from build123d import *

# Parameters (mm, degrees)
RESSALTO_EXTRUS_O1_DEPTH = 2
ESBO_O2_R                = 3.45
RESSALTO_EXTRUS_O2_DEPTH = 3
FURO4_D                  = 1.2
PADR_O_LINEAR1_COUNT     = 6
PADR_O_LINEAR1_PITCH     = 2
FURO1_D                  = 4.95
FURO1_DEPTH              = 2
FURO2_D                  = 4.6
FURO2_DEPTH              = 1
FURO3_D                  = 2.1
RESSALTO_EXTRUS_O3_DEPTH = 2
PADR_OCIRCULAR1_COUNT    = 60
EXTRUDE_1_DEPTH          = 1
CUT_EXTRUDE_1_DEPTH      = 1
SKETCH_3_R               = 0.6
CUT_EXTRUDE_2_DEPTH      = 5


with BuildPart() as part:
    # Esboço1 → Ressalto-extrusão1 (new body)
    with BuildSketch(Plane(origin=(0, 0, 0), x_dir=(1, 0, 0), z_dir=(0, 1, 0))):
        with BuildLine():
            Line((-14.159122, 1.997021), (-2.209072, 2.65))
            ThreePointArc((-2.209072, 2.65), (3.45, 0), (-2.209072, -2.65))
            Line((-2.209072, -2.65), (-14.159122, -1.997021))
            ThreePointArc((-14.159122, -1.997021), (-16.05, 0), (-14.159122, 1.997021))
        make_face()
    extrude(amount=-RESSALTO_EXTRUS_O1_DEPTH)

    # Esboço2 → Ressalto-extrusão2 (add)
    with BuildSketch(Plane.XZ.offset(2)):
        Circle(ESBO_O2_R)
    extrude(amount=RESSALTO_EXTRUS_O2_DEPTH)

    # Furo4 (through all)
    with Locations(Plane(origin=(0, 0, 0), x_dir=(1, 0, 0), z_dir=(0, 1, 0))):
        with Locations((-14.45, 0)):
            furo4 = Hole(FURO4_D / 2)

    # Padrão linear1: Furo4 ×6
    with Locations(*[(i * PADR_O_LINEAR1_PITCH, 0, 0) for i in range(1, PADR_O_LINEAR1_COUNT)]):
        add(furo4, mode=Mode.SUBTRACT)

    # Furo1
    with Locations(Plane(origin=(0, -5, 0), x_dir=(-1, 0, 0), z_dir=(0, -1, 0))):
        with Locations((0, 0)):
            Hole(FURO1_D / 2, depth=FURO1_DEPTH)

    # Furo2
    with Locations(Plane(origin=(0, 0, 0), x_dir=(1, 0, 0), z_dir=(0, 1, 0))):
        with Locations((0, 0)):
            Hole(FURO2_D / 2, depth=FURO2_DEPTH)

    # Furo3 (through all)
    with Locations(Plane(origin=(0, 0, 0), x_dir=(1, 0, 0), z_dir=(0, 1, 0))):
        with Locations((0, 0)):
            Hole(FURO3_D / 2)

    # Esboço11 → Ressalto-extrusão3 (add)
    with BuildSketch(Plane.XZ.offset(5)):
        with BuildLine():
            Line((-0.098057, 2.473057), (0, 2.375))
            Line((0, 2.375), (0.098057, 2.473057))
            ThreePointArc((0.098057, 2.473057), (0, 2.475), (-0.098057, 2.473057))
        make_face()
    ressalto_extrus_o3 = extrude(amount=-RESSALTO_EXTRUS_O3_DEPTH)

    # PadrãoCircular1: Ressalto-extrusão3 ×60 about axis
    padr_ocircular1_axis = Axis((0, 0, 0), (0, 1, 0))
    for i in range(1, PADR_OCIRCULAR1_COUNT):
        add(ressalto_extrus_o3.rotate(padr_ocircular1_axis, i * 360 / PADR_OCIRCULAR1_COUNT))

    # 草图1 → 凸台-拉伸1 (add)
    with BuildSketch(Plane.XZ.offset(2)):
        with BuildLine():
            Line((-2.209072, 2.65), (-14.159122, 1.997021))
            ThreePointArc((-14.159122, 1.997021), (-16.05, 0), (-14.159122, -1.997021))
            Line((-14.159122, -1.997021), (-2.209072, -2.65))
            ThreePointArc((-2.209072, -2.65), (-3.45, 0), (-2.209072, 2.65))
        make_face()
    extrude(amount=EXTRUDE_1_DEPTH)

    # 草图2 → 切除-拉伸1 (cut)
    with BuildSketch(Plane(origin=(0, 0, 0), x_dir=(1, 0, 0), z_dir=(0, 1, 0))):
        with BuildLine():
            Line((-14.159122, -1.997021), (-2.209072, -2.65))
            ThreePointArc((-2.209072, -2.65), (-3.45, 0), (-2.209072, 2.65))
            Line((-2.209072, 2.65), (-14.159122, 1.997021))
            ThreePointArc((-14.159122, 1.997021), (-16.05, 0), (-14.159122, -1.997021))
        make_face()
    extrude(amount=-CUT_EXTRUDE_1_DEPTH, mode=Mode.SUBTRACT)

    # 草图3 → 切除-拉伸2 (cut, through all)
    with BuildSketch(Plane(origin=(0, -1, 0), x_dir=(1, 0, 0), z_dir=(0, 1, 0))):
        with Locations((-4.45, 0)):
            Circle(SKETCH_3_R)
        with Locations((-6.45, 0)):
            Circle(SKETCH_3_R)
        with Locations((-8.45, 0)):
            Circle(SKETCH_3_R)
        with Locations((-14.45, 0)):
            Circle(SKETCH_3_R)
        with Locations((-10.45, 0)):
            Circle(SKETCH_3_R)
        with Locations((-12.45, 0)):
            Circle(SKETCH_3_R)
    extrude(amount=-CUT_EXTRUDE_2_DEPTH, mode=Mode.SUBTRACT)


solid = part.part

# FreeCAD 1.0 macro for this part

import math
import FreeCAD as App
import Part
import Sketcher

doc = App.newDocument("Part")
params = doc.addObject("Spreadsheet::Sheet", "Params")
for row, (alias, value) in enumerate([
    ("sketch1_radius", "2 mm"),
    ("sketch1_radius2", "3.45 mm"),
    ("pad1_length", "2 mm"),
    ("sketch2_diameter", "6.9 mm"),
    ("pad2_length", "3 mm"),
    ("sketch3_diameter", "1.2 mm"),
    ("hole_diameter", "1.2 mm"),
    ("linearpattern_pitch", "2 mm"),
    ("sketch4_diameter", "4.95 mm"),
    ("hole2_diameter", "4.95 mm"),
    ("hole2_depth", "2 mm"),
    ("sketch5_diameter", "4.6 mm"),
    ("hole3_diameter", "4.6 mm"),
    ("hole3_depth", "1 mm"),
    ("sketch6_diameter", "2.1 mm"),
    ("hole4_diameter", "2.1 mm"),
    ("pad3_length", "2 mm"),
    ("sketch8_radius", "2 mm"),
    ("sketch8_radius2", "3.45 mm"),
    ("pad4_length", "1 mm"),
    ("sketch9_radius", "2 mm"),
    ("sketch9_radius2", "3.45 mm"),
    ("pocket1_length", "1 mm"),
    ("sketch10_diameter", "1.2 mm"),
], start=1):
    params.set(f"A{row}", alias)
    params.set(f"B{row}", "=" + value)
    params.setAlias(f"B{row}", alias)

body = doc.addObject("PartDesign::Body", "Body")

# Sketch on XZ plane
sketch1 = doc.addObject("Sketcher::SketchObject", "Sketch")
body.addObject(sketch1)
sketch1.AttachmentSupport = (doc.XZ_Plane, [""])
sketch1.MapMode = "FlatFace"
sketch1.addGeometry([
    Part.LineSegment(App.Vector(-2.2, -2.6, 0), App.Vector(-14.2, -2, 0)),
    Part.ArcOfCircle(Part.Circle(App.Vector(-14, 0, 0), App.Vector(0, 0, 1), 2), math.radians(93), math.radians(267)),
    Part.LineSegment(App.Vector(-14.2, 2, 0), App.Vector(-2.2, 2.6, 0)),
    Part.ArcOfCircle(Part.Circle(App.Vector(0, 0, 0), App.Vector(0, 0, 1), 3.4), math.radians(-130), math.radians(130)),
], False)
sketch1.addConstraint([
    Sketcher.Constraint("Tangent", 0, 2, 1, 2),
    Sketcher.Constraint("Tangent", 1, 1, 2, 1),
    Sketcher.Constraint("Coincident", 2, 2, 3, 2),
    Sketcher.Constraint("Coincident", 3, 1, 0, 1),
    Sketcher.Constraint("Coincident", 3, 3, -1, 1),
    Sketcher.Constraint("Symmetric", 0, 2, 1, 1, -1),
    Sketcher.Constraint("Radius", 1, 2.0),
    Sketcher.Constraint("Radius", 3, 3.45),
    Sketcher.Constraint("DistanceY", 3, 1, 2, 2, 5.3),
    Sketcher.Constraint("DistanceX", 1, 3, -1, 1, 14.05),
])
sketch1.setExpression("Constraints[6]", "Params.sketch1_radius")
sketch1.setExpression("Constraints[7]", "Params.sketch1_radius2")
pad1 = doc.addObject("PartDesign::Pad", "Pad")
body.addObject(pad1)
pad1.Profile = sketch1
pad1.setExpression("Length", "Params.pad1_length")

# Sketch on XZ plane
sketch2 = doc.addObject("Sketcher::SketchObject", "Sketch001")
body.addObject(sketch2)
sketch2.AttachmentSupport = (doc.XZ_Plane, [""])
sketch2.MapMode = "FlatFace"
sketch2.AttachmentOffset = App.Placement(App.Vector(0, 0, 2), App.Rotation())
sketch2.addGeometry(Part.Circle(App.Vector(0, 0, 0), App.Vector(0, 0, 1), 3.5), False)
sketch2.addConstraint([
    Sketcher.Constraint("Coincident", 0, 3, -1, 1),
    Sketcher.Constraint("Diameter", 0, 6.9),
])
sketch2.setExpression("Constraints[1]", "Params.sketch2_diameter")
pad2 = doc.addObject("PartDesign::Pad", "Pad001")
body.addObject(pad2)
pad2.Profile = sketch2
pad2.setExpression("Length", "Params.pad2_length")

# Sketch on XZ plane
sketch3 = doc.addObject("Sketcher::SketchObject", "Sketch002")
body.addObject(sketch3)
sketch3.AttachmentSupport = (doc.XZ_Plane, [""])
sketch3.MapMode = "FlatFace"
sketch3.addGeometry(Part.Circle(App.Vector(-14.4, 0, 0), App.Vector(0, 0, 1), 0.6), False)
sketch3.addConstraint([
    Sketcher.Constraint("PointOnObject", 0, 3, -1),
    Sketcher.Constraint("Diameter", 0, 1.2),
    Sketcher.Constraint("DistanceX", 0, 3, -1, 1, 14.45),
])
sketch3.setExpression("Constraints[1]", "Params.sketch3_diameter")
doc.recompute()
hole = doc.addObject("PartDesign::Hole", "Hole")
body.addObject(hole)
hole.Profile = sketch3
hole.ThreadType = "None"
hole.setExpression("Diameter", "Params.hole_diameter")
hole.DepthType = "ThroughAll"
hole.Reversed = True
doc.recompute()

linearpattern = doc.addObject("PartDesign::LinearPattern", "LinearPattern")
body.addObject(linearpattern)
linearpattern.Originals = [hole]
linearpattern.Direction = (doc.X_Axis, [""])
linearpattern.Mode = "offset"
linearpattern.setExpression("Offset", "Params.linearpattern_pitch")
linearpattern.Occurrences = 6
body.Tip = linearpattern

# Sketch on XZ plane
sketch4 = doc.addObject("Sketcher::SketchObject", "Sketch003")
body.addObject(sketch4)
sketch4.AttachmentSupport = (doc.XZ_Plane, [""])
sketch4.MapMode = "FlatFace"
sketch4.AttachmentOffset = App.Placement(App.Vector(0, 0, 5), App.Rotation())
sketch4.addGeometry(Part.Circle(App.Vector(0, 0, 0), App.Vector(0, 0, 1), 2.5), False)
sketch4.addConstraint([
    Sketcher.Constraint("Coincident", 0, 3, -1, 1),
    Sketcher.Constraint("Diameter", 0, 4.95),
])
sketch4.setExpression("Constraints[1]", "Params.sketch4_diameter")
doc.recompute()
hole2 = doc.addObject("PartDesign::Hole", "Hole001")
body.addObject(hole2)
hole2.Profile = sketch4
hole2.ThreadType = "None"
hole2.setExpression("Diameter", "Params.hole2_diameter")
hole2.DepthType = "Dimension"
hole2.setExpression("Depth", "Params.hole2_depth")
hole2.DrillPoint = "Flat"

# Sketch on XZ plane
sketch5 = doc.addObject("Sketcher::SketchObject", "Sketch004")
body.addObject(sketch5)
sketch5.AttachmentSupport = (doc.XZ_Plane, [""])
sketch5.MapMode = "FlatFace"
sketch5.addGeometry(Part.Circle(App.Vector(0, 0, 0), App.Vector(0, 0, 1), 2.3), False)
sketch5.addConstraint([
    Sketcher.Constraint("Coincident", 0, 3, -1, 1),
    Sketcher.Constraint("Diameter", 0, 4.6),
])
sketch5.setExpression("Constraints[1]", "Params.sketch5_diameter")
doc.recompute()
hole3 = doc.addObject("PartDesign::Hole", "Hole002")
body.addObject(hole3)
hole3.Profile = sketch5
hole3.ThreadType = "None"
hole3.setExpression("Diameter", "Params.hole3_diameter")
hole3.DepthType = "Dimension"
hole3.setExpression("Depth", "Params.hole3_depth")
hole3.DrillPoint = "Flat"
hole3.Reversed = True

# Sketch on XZ plane
sketch6 = doc.addObject("Sketcher::SketchObject", "Sketch005")
body.addObject(sketch6)
sketch6.AttachmentSupport = (doc.XZ_Plane, [""])
sketch6.MapMode = "FlatFace"
sketch6.addGeometry(Part.Circle(App.Vector(0, 0, 0), App.Vector(0, 0, 1), 1.1), False)
sketch6.addConstraint([
    Sketcher.Constraint("Coincident", 0, 3, -1, 1),
    Sketcher.Constraint("Diameter", 0, 2.1),
])
sketch6.setExpression("Constraints[1]", "Params.sketch6_diameter")
doc.recompute()
hole4 = doc.addObject("PartDesign::Hole", "Hole003")
body.addObject(hole4)
hole4.Profile = sketch6
hole4.ThreadType = "None"
hole4.setExpression("Diameter", "Params.hole4_diameter")
hole4.DepthType = "ThroughAll"
hole4.Reversed = True

# Sketch on XZ plane
sketch7 = doc.addObject("Sketcher::SketchObject", "Sketch006")
body.addObject(sketch7)
sketch7.AttachmentSupport = (doc.XZ_Plane, [""])
sketch7.MapMode = "FlatFace"
sketch7.AttachmentOffset = App.Placement(App.Vector(0, 0, 5), App.Rotation())
sketch7.addGeometry([
    Part.LineSegment(App.Vector(-0.1, 2.47, 0), App.Vector(0, 2.38, 0)),
    Part.LineSegment(App.Vector(0, 2.38, 0), App.Vector(0.1, 2.47, 0)),
    Part.ArcOfCircle(Part.Circle(App.Vector(0, 0, 0), App.Vector(0, 0, 1), 2.48), math.radians(87.73), math.radians(92.27)),
], False)
sketch7.addConstraint([
    Sketcher.Constraint("Coincident", 0, 2, 1, 1),
    Sketcher.Constraint("Coincident", 1, 2, 2, 1),
    Sketcher.Constraint("Coincident", 2, 2, 0, 1),
    Sketcher.Constraint("Symmetric", 1, 2, 2, 2, -2),
    Sketcher.Constraint("PointOnObject", 0, 2, -2),
    Sketcher.Constraint("Perpendicular", 0, 1),
    Sketcher.Constraint("DistanceY", -1, 1, 0, 2, 2.375),
    Sketcher.Constraint("Radius", 2, 2.475283),
    Sketcher.Constraint("DistanceY", 2, 3, 1, 2, 2.47334),
])
pad3 = doc.addObject("PartDesign::Pad", "Pad002")
body.addObject(pad3)
pad3.Profile = sketch7
pad3.setExpression("Length", "Params.pad3_length")
pad3.Reversed = True
doc.recompute()

polarpattern = doc.addObject("PartDesign::PolarPattern", "PolarPattern")
body.addObject(polarpattern)
polarpattern.Originals = [pad3]
polarpattern.Axis = (doc.Y_Axis, [""])
polarpattern.Angle = 360
polarpattern.Occurrences = 60
body.Tip = polarpattern

# Sketch on XZ plane
sketch8 = doc.addObject("Sketcher::SketchObject", "Sketch007")
body.addObject(sketch8)
sketch8.AttachmentSupport = (doc.XZ_Plane, [""])
sketch8.MapMode = "FlatFace"
sketch8.AttachmentOffset = App.Placement(App.Vector(0, 0, 2), App.Rotation())
sketch8.addGeometry([
    Part.LineSegment(App.Vector(-2.2, 2.6, 0), App.Vector(-14.2, 2, 0)),
    Part.ArcOfCircle(Part.Circle(App.Vector(-14, 0, 0), App.Vector(0, 0, 1), 2), math.radians(93), math.radians(267)),
    Part.LineSegment(App.Vector(-14.2, -2, 0), App.Vector(-2.2, -2.6, 0)),
    Part.ArcOfCircle(Part.Circle(App.Vector(0, 0, 0), App.Vector(0, 0, 1), 3.4), math.radians(130), math.radians(230)),
], False)
sketch8.addConstraint([
    Sketcher.Constraint("Tangent", 0, 2, 1, 1),
    Sketcher.Constraint("Tangent", 1, 2, 2, 1),
    Sketcher.Constraint("Coincident", 2, 2, 3, 2),
    Sketcher.Constraint("Coincident", 3, 1, 0, 1),
    Sketcher.Constraint("Coincident", 3, 3, -1, 1),
    Sketcher.Constraint("Symmetric", 0, 2, 1, 2, -1),
    Sketcher.Constraint("Radius", 1, 2.0),
    Sketcher.Constraint("Radius", 3, 3.45),
    Sketcher.Constraint("DistanceY", 2, 2, 3, 1, 5.3),
    Sketcher.Constraint("DistanceX", 1, 3, -1, 1, 14.05),
])
sketch8.setExpression("Constraints[6]", "Params.sketch8_radius")
sketch8.setExpression("Constraints[7]", "Params.sketch8_radius2")
pad4 = doc.addObject("PartDesign::Pad", "Pad003")
body.addObject(pad4)
pad4.Profile = sketch8
pad4.setExpression("Length", "Params.pad4_length")

# Sketch on XZ plane
sketch9 = doc.addObject("Sketcher::SketchObject", "Sketch008")
body.addObject(sketch9)
sketch9.AttachmentSupport = (doc.XZ_Plane, [""])
sketch9.MapMode = "FlatFace"
sketch9.addGeometry([
    Part.LineSegment(App.Vector(-14.2, 2, 0), App.Vector(-2.2, 2.6, 0)),
    Part.ArcOfCircle(Part.Circle(App.Vector(0, 0, 0), App.Vector(0, 0, 1), 3.4), math.radians(130), math.radians(230)),
    Part.LineSegment(App.Vector(-2.2, -2.6, 0), App.Vector(-14.2, -2, 0)),
    Part.ArcOfCircle(Part.Circle(App.Vector(-14, 0, 0), App.Vector(0, 0, 1), 2), math.radians(93), math.radians(267)),
], False)
sketch9.addConstraint([
    Sketcher.Constraint("Coincident", 0, 2, 1, 1),
    Sketcher.Constraint("Coincident", 1, 2, 2, 1),
    Sketcher.Constraint("Tangent", 2, 2, 3, 2),
    Sketcher.Constraint("Tangent", 3, 1, 0, 1),
    Sketcher.Constraint("Coincident", 1, 3, -1, 1),
    Sketcher.Constraint("Symmetric", 2, 2, 3, 1, -1),
    Sketcher.Constraint("Radius", 3, 2.0),
    Sketcher.Constraint("Radius", 1, 3.45),
    Sketcher.Constraint("DistanceY", 1, 2, 0, 2, 5.3),
    Sketcher.Constraint("DistanceX", 3, 3, -1, 1, 14.05),
])
sketch9.setExpression("Constraints[6]", "Params.sketch9_radius")
sketch9.setExpression("Constraints[7]", "Params.sketch9_radius2")
pocket1 = doc.addObject("PartDesign::Pocket", "Pocket")
body.addObject(pocket1)
pocket1.Profile = sketch9
pocket1.setExpression("Length", "Params.pocket1_length")
pocket1.Reversed = True

# Sketch on XZ plane
sketch10 = doc.addObject("Sketcher::SketchObject", "Sketch009")
body.addObject(sketch10)
sketch10.AttachmentSupport = (doc.XZ_Plane, [""])
sketch10.MapMode = "FlatFace"
sketch10.AttachmentOffset = App.Placement(App.Vector(0, 0, 1), App.Rotation())
sketch10.addGeometry([
    Part.Circle(App.Vector(-4.5, 0, 0), App.Vector(0, 0, 1), 0.6),  # 0
    Part.Circle(App.Vector(-6.5, 0, 0), App.Vector(0, 0, 1), 0.6),  # 1
    Part.Circle(App.Vector(-8.4, 0, 0), App.Vector(0, 0, 1), 0.6),  # 2
    Part.Circle(App.Vector(-14.4, 0, 0), App.Vector(0, 0, 1), 0.6),  # 3
    Part.Circle(App.Vector(-10.4, 0, 0), App.Vector(0, 0, 1), 0.6),  # 4
    Part.Circle(App.Vector(-12.4, 0, 0), App.Vector(0, 0, 1), 0.6),  # 5
], False)
sketch10.addConstraint([
    Sketcher.Constraint("Equal", 0, 1),
    Sketcher.Constraint("Equal", 1, 2),
    Sketcher.Constraint("Equal", 2, 3),
    Sketcher.Constraint("Equal", 3, 4),
    Sketcher.Constraint("Equal", 4, 5),
    Sketcher.Constraint("PointOnObject", 0, 3, -1),
    Sketcher.Constraint("PointOnObject", 1, 3, -1),
    Sketcher.Constraint("PointOnObject", 2, 3, -1),
    Sketcher.Constraint("PointOnObject", 3, 3, -1),
    Sketcher.Constraint("PointOnObject", 4, 3, -1),
    Sketcher.Constraint("PointOnObject", 5, 3, -1),
    Sketcher.Constraint("Diameter", 0, 1.2),
    Sketcher.Constraint("DistanceX", 1, 3, 0, 3, 2.0),
    Sketcher.Constraint("DistanceX", 2, 3, 1, 3, 2.0),
    Sketcher.Constraint("DistanceX", 3, 3, 2, 3, 6.0),
    Sketcher.Constraint("DistanceX", 4, 3, 2, 3, 2.0),
    Sketcher.Constraint("DistanceX", 3, 3, 5, 3, 2.0),
    Sketcher.Constraint("DistanceX", 0, 3, -1, 1, 4.45),
])
sketch10.setExpression("Constraints[11]", "Params.sketch10_diameter")
pocket2 = doc.addObject("PartDesign::Pocket", "Pocket001")
body.addObject(pocket2)
pocket2.Profile = sketch10
pocket2.Type = "ThroughAll"
pocket2.Reversed = True

doc.recompute()
